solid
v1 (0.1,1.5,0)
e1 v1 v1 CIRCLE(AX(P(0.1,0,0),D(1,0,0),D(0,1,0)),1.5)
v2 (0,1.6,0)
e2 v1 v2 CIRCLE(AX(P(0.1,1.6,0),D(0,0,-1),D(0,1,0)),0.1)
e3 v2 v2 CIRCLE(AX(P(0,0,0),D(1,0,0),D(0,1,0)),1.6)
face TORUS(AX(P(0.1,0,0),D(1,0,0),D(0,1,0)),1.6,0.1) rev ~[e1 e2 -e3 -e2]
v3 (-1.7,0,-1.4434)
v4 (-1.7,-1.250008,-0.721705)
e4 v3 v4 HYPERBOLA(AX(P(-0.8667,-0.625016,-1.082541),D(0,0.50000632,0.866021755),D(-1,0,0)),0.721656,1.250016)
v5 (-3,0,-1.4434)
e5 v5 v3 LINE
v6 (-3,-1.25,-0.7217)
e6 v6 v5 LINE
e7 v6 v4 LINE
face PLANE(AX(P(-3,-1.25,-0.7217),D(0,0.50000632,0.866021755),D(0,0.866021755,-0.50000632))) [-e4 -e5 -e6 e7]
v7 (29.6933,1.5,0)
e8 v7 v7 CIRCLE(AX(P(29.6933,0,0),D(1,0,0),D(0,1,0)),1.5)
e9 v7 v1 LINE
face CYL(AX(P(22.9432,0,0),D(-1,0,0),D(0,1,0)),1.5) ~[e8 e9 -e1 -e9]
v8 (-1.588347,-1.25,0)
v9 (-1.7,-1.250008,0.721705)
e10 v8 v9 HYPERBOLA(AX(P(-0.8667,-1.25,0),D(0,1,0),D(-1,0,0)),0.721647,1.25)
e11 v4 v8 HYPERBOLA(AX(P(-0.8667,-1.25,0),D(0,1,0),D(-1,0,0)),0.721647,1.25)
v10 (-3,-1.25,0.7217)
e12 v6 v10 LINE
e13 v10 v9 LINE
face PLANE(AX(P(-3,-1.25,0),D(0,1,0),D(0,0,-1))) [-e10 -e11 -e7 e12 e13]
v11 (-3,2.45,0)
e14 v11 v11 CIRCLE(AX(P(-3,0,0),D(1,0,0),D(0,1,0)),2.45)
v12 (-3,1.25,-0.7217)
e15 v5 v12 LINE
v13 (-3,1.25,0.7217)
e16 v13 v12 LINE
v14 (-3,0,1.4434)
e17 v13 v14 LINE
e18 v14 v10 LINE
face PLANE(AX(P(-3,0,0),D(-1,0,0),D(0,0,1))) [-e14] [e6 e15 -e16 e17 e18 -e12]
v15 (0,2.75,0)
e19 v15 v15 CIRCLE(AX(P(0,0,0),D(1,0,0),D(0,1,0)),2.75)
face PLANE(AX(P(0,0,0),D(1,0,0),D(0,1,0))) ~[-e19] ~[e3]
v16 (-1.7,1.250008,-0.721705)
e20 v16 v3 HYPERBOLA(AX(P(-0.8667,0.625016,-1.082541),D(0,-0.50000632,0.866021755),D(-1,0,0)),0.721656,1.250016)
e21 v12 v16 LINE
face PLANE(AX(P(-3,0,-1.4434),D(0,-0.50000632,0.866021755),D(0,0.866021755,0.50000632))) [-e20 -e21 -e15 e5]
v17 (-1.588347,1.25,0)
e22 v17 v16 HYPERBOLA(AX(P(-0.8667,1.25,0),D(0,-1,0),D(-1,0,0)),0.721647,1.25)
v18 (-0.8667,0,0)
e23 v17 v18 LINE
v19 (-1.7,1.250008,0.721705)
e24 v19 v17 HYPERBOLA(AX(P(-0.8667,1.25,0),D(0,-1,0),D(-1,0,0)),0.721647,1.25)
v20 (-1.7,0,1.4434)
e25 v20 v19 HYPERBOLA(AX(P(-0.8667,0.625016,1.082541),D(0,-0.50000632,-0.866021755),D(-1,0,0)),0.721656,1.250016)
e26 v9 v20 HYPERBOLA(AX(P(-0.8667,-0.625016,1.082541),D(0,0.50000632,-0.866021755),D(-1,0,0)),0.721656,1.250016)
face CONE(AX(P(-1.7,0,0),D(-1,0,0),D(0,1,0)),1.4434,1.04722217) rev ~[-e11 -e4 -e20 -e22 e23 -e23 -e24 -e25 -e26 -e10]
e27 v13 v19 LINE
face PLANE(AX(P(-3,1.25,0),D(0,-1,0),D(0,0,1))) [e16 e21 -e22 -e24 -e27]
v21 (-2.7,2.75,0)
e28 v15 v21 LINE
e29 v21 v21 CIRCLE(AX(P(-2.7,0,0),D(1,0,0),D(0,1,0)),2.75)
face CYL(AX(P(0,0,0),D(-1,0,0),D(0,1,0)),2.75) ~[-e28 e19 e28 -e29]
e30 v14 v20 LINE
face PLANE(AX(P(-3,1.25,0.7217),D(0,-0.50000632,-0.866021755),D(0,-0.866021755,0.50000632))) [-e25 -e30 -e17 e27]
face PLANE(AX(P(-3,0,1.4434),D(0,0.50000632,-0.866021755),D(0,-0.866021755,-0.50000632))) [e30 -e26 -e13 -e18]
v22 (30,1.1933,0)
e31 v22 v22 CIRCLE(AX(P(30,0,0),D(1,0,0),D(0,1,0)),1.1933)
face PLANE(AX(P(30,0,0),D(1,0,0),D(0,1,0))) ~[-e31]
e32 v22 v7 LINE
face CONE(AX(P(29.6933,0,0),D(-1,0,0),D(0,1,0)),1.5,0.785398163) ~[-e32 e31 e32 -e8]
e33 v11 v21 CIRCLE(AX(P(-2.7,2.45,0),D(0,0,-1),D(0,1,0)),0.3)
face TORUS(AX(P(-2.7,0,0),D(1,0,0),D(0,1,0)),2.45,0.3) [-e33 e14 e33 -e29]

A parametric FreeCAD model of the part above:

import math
import FreeCAD as App
import Part
import Sketcher
from FreeCAD import Vector
Q = App.Units.Quantity


def edges_at(feature, points):
    """Names of the edges that pass closest to the given points."""
    edges = feature.Shape.Edges
    near = lambda p: min(range(len(edges)), key=lambda i: edges[i].distToShape(Part.Vertex(*p))[0])
    return sorted({f"Edge{near(p) + 1}" for p in points})


def add_polygon(sketch, points):
    """Adds a closed chain of lines whose ends are joined by coincident constraints."""
    first, n = sketch.GeometryCount, len(points)
    for a, b in zip(points, points[1:] + points[:1]):
        sketch.addGeometry(Part.LineSegment(App.Vector(*a, 0), App.Vector(*b, 0)), False)
    for i in range(n):
        sketch.addConstraint(Sketcher.Constraint("Coincident", first + i, 2, first + (i + 1) % n, 1))

doc = App.newDocument("Part")
body = doc.addObject("PartDesign::Body", "Body")

sketch1 = body.newObject("Sketcher::SketchObject", "Sketch")
sketch1.AttachmentSupport = (doc.getObject("XY_Plane"), [""])
sketch1.MapMode = "FlatFace"
add_polygon(sketch1, [(-1.7, 1.4), (-0.9, 0), (30, 0), (30, 1.5), (0, 1.5), (0, 2.8), (-3, 2.8), (-3, 1.4)])
sketch1.addConstraint([
    Sketcher.Constraint("Horizontal", 1),
    Sketcher.Constraint("Vertical", 2),
    Sketcher.Constraint("Horizontal", 3),
    Sketcher.Constraint("Vertical", 4),
    Sketcher.Constraint("Horizontal", 5),
    Sketcher.Constraint("Vertical", 6),
    Sketcher.Constraint("Horizontal", 7),
    Sketcher.Constraint("PointOnObject", 0, 2, -1),
    Sketcher.Constraint("PointOnObject", 3, 2, -2),
    Sketcher.Constraint("DistanceX", 3, 2, 3, 1, 30.0),
    Sketcher.Constraint("DistanceX", 5, 2, 5, 1, 3.0),
    Sketcher.Constraint("DistanceX", 7, 1, 7, 2, 1.3),
    Sketcher.Constraint("DistanceY", 2, 1, 2, 2, 1.5),
    Sketcher.Constraint("DistanceY", 4, 1, 4, 2, 1.25),
    Sketcher.Constraint("DistanceX", 1, 1, 1, 2, 30.8667),
    Sketcher.Constraint("DistanceY", 6, 2, 6, 1, 1.3066),
])
revolution = body.newObject("PartDesign::Revolution", "Revolution")
revolution.Profile = sketch1
revolution.ReferenceAxis = (sketch1, ["H_Axis"])
revolution.Angle = 360

sketch2 = body.newObject("Sketcher::SketchObject", "Sketch001")
sketch2.AttachmentSupport = (doc.getObject("YZ_Plane"), [""])
sketch2.MapMode = "FlatFace"
sketch2.AttachmentOffset = App.Placement(Vector(0, 0, -3), App.Rotation())
sketch2.addGeometry([
    Part.LineSegment(Vector(1.2, 0.7, 0), Vector(0, 1.4, 0)),
    Part.ArcOfCircle(Part.Circle(Vector(0, 0, 0), Vector(0, 0, 1), 1.4), math.radians(30), math.radians(90)),
    Part.ArcOfCircle(Part.Circle(Vector(0, 0, 0), Vector(0, 0, 1), 1.4), math.radians(90), math.radians(150)),
    Part.LineSegment(Vector(0, 1.4, 0), Vector(-1.2, 0.7, 0)),
    Part.ArcOfCircle(Part.Circle(Vector(0, 0, 0), Vector(0, 0, 1), 1.4), math.radians(-30), math.radians(30)),
    Part.LineSegment(Vector(1.2, 0.7, 0), Vector(1.2, -0.7, 0)),
    Part.LineSegment(Vector(-1.2, 0.7, 0), Vector(-1.2, -0.7, 0)),
    Part.ArcOfCircle(Part.Circle(Vector(0, 0, 0), Vector(0, 0, 1), 1.4), math.radians(150), math.radians(210)),
    Part.LineSegment(Vector(-1.2, -0.7, 0), Vector(0, -1.4, 0)),
    Part.ArcOfCircle(Part.Circle(Vector(0, 0, 0), Vector(0, 0, 1), 1.4), math.radians(-150), math.radians(-90)),
    Part.ArcOfCircle(Part.Circle(Vector(0, 0, 0), Vector(0, 0, 1), 1.4), math.radians(-90), math.radians(-30)),
    Part.LineSegment(Vector(0, -1.4, 0), Vector(1.2, -0.7, 0)),
], False)
sketch2.addConstraint([
    Sketcher.Constraint("Coincident", 0, 1, 1, 1),
    Sketcher.Constraint("Coincident", 1, 2, 0, 2),
    Sketcher.Constraint("Coincident", 2, 1, 3, 1),
    Sketcher.Constraint("Coincident", 3, 2, 2, 2),
    Sketcher.Constraint("Coincident", 4, 1, 5, 2),
    Sketcher.Constraint("Coincident", 5, 1, 4, 2),
    Sketcher.Constraint("Coincident", 6, 1, 7, 1),
    Sketcher.Constraint("Coincident", 7, 2, 6, 2),
    Sketcher.Constraint("Coincident", 8, 1, 9, 1),
    Sketcher.Constraint("Coincident", 9, 2, 8, 2),
    Sketcher.Constraint("Coincident", 10, 1, 11, 1),
    Sketcher.Constraint("Coincident", 11, 2, 10, 2),
    Sketcher.Constraint("Vertical", 5),
    Sketcher.Constraint("Vertical", 6),
    Sketcher.Constraint("Coincident", 1, 3, -1, 1),
    Sketcher.Constraint("Coincident", 2, 3, -1, 1),
    Sketcher.Constraint("Coincident", 4, 3, -1, 1),
    Sketcher.Constraint("Coincident", 7, 3, -1, 1),
    Sketcher.Constraint("Coincident", 9, 3, -1, 1),
    Sketcher.Constraint("Coincident", 10, 3, -1, 1),
    Sketcher.Constraint("Coincident", 2, 1, 1, 2),
    Sketcher.Constraint("Coincident", 5, 1, 0, 1),
    Sketcher.Constraint("Coincident", 6, 1, 3, 2),
    Sketcher.Constraint("Coincident", 8, 1, 7, 2),
    Sketcher.Constraint("Coincident", 10, 1, 9, 2),
    Sketcher.Constraint("PointOnObject", 1, 2, -2),
    Sketcher.Constraint("PointOnObject", 9, 2, -2),
    Sketcher.Constraint("Parallel", 0, 8),
    Sketcher.Constraint("Parallel", 3, 11),
    Sketcher.Constraint("Angle", 0, Q("149.9996 deg")),
    Sketcher.Constraint("Radius", 1, 1.4434),
])
pad1 = body.newObject("PartDesign::Pad", "Pad")
pad1.Profile = sketch2
pad1.Type = "UpToFirst"
doc.recompute()

fillet = body.newObject("PartDesign::Fillet", "Fillet")
fillet.Base = (pad1, edges_at(pad1, [(-3, -2.75, 0)]))
fillet.Radius = 0.3
doc.recompute()

chamfer = body.newObject("PartDesign::Chamfer", "Chamfer")
chamfer.Base = (fillet, edges_at(fillet, [(30, -1.5, 0)]))
chamfer.ChamferType = "Two distances"
chamfer.Size = 0.3067
chamfer.Size2 = 0.3067
doc.recompute()

fillet2 = body.newObject("PartDesign::Fillet", "Fillet001")
fillet2.Base = (chamfer, edges_at(chamfer, [(0, -1.5, 0)]))
fillet2.Radius = 0.1

doc.recompute()
